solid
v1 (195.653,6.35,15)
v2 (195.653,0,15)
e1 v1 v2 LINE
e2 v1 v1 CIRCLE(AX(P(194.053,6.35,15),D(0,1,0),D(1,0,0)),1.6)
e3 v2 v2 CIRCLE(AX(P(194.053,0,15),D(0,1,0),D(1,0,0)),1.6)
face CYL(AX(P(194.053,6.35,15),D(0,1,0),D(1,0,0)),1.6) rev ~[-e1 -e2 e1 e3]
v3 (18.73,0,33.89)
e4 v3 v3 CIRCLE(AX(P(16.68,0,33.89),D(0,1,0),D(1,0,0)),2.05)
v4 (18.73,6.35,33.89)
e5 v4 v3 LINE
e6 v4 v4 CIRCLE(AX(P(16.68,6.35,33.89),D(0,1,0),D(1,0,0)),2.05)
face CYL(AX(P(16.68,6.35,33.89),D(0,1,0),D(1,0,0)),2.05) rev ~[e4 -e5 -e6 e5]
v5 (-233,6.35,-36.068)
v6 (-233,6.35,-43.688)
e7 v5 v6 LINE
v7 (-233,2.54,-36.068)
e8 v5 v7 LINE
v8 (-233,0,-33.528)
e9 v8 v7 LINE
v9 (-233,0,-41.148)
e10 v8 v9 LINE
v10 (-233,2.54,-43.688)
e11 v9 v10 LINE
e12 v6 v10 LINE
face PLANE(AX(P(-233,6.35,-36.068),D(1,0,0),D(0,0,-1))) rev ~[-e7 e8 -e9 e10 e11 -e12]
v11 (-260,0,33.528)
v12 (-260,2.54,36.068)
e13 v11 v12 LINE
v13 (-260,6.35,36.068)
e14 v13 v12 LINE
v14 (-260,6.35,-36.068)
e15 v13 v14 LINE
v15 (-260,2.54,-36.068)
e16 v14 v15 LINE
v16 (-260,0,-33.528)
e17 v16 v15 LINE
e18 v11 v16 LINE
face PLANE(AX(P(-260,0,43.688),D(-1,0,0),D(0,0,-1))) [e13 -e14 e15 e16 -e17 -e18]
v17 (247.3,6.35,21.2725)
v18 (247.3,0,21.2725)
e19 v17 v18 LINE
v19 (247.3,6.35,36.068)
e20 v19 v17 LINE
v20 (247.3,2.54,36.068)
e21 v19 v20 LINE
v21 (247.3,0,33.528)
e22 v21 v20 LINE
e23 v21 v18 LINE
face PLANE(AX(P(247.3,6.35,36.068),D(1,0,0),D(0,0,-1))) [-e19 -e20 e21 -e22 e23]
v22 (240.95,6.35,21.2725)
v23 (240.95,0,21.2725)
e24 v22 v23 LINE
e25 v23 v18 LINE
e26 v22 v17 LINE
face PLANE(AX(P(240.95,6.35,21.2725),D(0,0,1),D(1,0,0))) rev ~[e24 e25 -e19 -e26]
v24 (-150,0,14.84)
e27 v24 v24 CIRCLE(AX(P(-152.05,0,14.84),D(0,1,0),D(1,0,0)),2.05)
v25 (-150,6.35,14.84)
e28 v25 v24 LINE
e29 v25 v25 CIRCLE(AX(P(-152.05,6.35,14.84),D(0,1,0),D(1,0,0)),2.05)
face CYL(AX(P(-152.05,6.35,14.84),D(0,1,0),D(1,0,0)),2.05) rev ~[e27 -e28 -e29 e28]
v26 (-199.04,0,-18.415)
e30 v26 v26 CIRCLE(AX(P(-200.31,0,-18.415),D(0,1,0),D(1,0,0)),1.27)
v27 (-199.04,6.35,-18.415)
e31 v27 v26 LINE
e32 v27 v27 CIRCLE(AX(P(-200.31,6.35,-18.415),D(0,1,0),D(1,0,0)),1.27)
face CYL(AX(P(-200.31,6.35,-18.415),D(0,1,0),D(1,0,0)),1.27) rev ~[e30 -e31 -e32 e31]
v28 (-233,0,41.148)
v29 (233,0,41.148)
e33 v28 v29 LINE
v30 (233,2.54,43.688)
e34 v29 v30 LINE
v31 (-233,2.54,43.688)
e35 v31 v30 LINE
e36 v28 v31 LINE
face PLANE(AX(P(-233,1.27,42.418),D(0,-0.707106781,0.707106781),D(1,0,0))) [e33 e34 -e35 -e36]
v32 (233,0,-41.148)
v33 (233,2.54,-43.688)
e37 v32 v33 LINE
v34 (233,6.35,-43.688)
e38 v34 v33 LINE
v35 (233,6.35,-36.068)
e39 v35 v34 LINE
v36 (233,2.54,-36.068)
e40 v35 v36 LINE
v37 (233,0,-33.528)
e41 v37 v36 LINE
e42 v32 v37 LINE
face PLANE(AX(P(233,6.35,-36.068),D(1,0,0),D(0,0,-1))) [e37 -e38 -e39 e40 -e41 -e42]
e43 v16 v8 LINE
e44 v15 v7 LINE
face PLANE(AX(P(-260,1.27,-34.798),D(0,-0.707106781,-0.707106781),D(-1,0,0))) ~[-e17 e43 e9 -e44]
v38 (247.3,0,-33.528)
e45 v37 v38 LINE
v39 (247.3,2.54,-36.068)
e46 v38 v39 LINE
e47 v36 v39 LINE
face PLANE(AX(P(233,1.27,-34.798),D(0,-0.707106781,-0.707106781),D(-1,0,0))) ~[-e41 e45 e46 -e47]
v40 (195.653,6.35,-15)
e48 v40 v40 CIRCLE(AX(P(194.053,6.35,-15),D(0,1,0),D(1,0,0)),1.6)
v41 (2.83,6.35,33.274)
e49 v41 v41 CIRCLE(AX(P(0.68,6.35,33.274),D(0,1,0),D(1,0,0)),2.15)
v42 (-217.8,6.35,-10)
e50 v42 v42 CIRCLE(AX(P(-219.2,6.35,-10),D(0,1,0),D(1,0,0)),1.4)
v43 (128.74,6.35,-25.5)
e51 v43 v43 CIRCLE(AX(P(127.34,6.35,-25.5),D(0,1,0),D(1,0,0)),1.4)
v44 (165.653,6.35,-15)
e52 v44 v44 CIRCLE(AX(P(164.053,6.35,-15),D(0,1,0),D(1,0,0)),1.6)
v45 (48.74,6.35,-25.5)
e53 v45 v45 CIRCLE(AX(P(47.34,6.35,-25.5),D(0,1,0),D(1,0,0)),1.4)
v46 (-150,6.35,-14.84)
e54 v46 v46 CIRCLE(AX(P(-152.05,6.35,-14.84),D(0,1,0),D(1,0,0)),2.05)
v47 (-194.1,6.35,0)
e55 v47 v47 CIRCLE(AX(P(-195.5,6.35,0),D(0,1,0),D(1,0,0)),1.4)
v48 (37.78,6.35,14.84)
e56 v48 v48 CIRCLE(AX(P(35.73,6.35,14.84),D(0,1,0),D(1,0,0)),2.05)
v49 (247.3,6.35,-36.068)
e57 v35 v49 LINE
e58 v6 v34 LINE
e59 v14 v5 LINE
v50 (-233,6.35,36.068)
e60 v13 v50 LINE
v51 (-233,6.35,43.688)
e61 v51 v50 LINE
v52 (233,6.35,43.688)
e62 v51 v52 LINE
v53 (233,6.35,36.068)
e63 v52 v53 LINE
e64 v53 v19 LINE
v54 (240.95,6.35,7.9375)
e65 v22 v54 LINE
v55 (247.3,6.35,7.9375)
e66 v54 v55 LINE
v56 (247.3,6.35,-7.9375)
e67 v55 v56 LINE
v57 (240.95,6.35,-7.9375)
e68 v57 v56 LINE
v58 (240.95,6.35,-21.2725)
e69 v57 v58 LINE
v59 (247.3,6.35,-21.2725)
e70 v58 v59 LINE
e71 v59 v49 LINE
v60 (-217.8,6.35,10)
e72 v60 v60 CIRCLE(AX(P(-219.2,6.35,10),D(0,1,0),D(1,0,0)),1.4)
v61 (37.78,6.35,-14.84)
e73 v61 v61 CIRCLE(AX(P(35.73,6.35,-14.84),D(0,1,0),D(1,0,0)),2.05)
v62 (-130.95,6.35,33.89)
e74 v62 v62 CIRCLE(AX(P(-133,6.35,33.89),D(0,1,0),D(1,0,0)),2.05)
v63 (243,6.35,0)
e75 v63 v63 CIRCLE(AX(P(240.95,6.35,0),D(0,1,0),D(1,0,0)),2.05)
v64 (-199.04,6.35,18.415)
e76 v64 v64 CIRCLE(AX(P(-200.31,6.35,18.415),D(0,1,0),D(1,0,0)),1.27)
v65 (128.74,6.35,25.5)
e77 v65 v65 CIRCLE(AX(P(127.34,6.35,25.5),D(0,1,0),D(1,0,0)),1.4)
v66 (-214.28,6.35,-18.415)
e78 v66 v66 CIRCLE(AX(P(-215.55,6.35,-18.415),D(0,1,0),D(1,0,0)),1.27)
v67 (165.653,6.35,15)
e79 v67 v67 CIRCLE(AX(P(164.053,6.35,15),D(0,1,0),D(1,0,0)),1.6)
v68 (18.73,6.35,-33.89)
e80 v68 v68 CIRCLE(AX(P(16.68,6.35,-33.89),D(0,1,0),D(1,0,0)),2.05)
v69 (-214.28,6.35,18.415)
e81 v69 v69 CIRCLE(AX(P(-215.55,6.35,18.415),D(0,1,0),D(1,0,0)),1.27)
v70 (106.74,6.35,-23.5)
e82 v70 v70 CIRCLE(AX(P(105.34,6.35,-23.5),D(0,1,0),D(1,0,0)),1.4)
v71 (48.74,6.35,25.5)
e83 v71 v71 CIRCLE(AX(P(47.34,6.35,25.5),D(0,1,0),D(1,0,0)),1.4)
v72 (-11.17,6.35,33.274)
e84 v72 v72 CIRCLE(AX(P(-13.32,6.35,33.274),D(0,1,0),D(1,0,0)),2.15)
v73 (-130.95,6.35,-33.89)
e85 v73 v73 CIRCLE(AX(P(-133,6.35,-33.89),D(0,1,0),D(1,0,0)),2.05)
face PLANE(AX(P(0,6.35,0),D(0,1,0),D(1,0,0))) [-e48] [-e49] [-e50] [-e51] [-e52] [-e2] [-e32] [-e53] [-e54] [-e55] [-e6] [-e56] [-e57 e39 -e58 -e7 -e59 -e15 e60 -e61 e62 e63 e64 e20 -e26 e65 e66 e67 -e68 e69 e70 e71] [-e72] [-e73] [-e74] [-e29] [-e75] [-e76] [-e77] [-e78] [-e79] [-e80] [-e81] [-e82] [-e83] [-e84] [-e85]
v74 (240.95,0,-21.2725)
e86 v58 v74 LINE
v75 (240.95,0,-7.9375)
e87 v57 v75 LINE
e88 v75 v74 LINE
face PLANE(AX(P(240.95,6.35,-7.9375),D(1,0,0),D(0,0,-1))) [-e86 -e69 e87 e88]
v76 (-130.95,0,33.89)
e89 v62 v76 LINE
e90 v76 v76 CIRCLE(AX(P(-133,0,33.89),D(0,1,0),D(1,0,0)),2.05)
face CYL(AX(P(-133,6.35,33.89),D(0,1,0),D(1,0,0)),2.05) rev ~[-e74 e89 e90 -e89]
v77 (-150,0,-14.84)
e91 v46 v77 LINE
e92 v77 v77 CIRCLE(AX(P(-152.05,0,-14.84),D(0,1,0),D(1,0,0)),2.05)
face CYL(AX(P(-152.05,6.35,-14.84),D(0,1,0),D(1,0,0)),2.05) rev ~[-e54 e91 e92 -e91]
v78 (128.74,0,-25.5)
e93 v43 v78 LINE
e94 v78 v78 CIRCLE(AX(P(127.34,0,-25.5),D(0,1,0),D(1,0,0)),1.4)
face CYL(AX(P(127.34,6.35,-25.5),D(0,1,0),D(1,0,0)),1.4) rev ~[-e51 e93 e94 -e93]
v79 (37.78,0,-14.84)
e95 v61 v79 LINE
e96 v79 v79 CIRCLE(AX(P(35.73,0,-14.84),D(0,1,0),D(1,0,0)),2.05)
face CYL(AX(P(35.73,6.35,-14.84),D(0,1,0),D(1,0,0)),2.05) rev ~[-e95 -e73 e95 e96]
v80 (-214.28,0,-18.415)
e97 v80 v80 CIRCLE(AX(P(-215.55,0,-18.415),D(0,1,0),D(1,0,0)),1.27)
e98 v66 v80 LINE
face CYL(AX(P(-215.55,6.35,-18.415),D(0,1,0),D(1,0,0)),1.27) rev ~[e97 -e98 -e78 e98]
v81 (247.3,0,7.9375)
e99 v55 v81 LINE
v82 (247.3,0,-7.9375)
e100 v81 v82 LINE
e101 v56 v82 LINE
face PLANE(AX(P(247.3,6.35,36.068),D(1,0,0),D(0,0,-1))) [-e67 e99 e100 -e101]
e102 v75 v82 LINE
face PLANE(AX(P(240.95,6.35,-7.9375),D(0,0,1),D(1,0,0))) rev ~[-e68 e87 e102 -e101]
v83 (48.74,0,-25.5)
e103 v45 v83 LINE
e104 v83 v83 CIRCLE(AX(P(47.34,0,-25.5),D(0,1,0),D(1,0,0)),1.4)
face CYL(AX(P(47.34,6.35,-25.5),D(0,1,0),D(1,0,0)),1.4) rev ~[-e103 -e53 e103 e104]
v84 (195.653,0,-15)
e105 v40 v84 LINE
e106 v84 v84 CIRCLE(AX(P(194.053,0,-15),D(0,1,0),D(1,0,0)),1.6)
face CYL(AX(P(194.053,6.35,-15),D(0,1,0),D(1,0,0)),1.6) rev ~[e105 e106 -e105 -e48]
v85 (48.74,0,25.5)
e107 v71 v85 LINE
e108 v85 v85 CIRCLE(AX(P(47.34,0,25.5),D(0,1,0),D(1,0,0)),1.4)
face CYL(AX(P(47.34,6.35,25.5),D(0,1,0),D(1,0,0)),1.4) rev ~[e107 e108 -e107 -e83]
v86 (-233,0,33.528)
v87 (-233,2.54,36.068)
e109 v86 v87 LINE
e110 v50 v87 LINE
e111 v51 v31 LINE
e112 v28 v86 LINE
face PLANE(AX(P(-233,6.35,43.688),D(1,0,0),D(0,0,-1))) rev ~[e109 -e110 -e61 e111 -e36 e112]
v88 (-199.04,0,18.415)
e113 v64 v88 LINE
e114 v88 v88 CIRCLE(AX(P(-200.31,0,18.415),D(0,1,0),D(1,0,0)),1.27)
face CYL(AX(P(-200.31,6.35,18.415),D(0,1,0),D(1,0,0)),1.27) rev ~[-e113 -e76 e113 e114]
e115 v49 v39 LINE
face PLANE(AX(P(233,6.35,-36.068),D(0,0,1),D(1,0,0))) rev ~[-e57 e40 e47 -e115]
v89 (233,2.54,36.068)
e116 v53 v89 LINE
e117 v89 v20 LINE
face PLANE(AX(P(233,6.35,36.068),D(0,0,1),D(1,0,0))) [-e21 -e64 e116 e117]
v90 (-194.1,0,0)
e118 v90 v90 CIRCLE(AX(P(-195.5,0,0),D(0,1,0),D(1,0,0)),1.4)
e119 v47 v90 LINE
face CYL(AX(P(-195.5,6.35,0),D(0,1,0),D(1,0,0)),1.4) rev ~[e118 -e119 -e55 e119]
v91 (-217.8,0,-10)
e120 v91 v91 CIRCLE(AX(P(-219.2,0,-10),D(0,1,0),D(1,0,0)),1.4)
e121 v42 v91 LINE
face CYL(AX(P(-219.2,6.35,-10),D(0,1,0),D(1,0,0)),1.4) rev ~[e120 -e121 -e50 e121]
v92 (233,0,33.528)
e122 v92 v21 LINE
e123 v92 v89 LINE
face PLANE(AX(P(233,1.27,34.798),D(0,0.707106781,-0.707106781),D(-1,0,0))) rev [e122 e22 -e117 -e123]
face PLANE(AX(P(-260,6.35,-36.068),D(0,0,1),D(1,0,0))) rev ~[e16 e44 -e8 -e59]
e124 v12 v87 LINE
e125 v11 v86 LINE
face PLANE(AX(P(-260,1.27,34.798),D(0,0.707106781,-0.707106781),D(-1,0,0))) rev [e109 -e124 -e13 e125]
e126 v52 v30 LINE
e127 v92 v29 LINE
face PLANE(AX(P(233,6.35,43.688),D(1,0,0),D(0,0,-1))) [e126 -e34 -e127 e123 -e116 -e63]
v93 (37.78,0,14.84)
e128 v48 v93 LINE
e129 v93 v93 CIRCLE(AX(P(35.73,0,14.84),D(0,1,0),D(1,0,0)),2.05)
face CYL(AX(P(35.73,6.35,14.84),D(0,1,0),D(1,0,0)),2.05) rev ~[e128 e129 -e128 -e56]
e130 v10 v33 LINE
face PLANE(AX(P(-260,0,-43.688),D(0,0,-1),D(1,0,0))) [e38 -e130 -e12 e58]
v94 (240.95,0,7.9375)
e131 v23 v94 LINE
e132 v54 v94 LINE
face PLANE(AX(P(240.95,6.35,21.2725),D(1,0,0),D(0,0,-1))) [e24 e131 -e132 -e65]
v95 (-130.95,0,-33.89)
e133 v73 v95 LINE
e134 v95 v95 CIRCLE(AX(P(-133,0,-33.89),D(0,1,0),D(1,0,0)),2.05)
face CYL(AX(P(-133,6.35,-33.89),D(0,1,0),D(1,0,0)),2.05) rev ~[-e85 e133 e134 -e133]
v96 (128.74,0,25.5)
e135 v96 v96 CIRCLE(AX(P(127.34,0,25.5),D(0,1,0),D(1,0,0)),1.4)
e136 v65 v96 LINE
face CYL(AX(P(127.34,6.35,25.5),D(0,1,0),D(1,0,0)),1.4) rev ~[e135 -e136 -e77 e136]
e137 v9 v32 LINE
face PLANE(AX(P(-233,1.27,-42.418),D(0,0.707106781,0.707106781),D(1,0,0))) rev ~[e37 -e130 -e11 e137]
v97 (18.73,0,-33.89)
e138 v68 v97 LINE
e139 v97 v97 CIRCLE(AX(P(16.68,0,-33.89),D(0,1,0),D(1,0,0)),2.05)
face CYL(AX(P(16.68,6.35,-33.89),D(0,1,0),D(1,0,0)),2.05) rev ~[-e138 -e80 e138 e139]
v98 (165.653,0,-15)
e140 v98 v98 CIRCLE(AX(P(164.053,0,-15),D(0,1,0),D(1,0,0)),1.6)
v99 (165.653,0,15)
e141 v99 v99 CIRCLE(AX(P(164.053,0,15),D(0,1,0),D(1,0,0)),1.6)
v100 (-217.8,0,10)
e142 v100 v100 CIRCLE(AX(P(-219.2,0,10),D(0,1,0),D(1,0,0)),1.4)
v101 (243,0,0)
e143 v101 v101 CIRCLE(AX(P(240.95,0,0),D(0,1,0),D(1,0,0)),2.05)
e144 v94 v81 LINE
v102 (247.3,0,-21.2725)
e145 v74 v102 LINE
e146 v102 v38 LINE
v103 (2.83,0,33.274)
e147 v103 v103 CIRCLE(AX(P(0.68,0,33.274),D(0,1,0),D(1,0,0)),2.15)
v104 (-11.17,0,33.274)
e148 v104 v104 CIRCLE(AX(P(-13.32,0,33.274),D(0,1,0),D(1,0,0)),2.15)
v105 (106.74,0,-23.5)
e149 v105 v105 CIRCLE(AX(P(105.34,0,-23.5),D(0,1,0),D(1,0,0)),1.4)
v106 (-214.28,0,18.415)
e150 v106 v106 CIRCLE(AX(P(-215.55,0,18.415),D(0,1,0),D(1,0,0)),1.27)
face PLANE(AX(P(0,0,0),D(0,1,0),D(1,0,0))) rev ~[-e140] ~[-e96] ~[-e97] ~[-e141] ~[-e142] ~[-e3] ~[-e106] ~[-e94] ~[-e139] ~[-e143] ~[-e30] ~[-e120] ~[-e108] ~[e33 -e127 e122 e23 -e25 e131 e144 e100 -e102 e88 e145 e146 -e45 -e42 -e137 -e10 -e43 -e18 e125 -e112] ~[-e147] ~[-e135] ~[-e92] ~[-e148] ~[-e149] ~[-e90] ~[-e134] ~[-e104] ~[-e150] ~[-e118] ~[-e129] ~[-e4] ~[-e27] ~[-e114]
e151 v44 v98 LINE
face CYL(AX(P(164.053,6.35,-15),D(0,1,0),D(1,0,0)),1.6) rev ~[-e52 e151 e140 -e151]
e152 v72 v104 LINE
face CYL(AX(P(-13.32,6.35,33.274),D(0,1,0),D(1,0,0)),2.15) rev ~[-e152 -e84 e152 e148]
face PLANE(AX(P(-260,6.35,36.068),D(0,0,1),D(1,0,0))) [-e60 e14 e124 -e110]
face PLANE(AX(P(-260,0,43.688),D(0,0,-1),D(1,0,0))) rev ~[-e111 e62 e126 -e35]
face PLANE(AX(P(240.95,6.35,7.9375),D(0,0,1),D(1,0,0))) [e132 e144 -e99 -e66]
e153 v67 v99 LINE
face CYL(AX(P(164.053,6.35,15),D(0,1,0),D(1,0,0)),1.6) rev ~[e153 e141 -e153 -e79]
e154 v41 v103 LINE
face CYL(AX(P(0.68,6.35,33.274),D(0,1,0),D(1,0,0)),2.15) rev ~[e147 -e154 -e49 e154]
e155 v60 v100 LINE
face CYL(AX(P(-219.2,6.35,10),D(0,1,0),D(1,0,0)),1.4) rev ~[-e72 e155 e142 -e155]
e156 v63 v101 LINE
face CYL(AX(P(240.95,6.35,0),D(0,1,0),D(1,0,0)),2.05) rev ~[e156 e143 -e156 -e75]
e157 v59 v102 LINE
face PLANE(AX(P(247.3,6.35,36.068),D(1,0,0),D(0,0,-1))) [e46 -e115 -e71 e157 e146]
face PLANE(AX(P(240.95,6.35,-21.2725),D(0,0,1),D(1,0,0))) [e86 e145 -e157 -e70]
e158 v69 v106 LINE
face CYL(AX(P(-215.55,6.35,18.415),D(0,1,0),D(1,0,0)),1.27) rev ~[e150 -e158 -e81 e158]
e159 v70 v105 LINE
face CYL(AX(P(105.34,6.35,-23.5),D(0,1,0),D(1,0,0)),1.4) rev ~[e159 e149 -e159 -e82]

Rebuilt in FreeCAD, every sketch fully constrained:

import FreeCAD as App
import Part
import Sketcher
Q = App.Units.Quantity


def edges_at(feature, points):
    """Names of the edges that pass closest to the given points."""
    edges = feature.Shape.Edges
    near = lambda p: min(range(len(edges)), key=lambda i: edges[i].distToShape(Part.Vertex(*p))[0])
    return sorted({f"Edge{near(p) + 1}" for p in points})

doc = App.newDocument("Part")
body = doc.addObject("PartDesign::Body", "Body")

# Sketch on XZ plane
sketch1 = body.newObject("Sketcher::SketchObject", "Sketch")
sketch1.AttachmentSupport = (doc.getObject("XZ_Plane"), [""])
sketch1.MapMode = "FlatFace"
sketch1.addGeometry(Part.LineSegment(App.Vector(-260, -44, 0), App.Vector(-260, 44, 0)), False)
sketch1.addGeometry(Part.LineSegment(App.Vector(-260, 44, 0), App.Vector(260, 44, 0)), False)
sketch1.addGeometry(Part.LineSegment(App.Vector(260, 44, 0), App.Vector(260, -44, 0)), False)
sketch1.addGeometry(Part.LineSegment(App.Vector(260, -44, 0), App.Vector(-260, -44, 0)), False)
sketch1.addConstraint(Sketcher.Constraint("Coincident", 0, 2, 1, 1))
sketch1.addConstraint(Sketcher.Constraint("Coincident", 1, 2, 2, 1))
sketch1.addConstraint(Sketcher.Constraint("Coincident", 2, 2, 3, 1))
sketch1.addConstraint(Sketcher.Constraint("Coincident", 3, 2, 0, 1))
sketch1.addConstraint(Sketcher.Constraint("Vertical", 0))
sketch1.addConstraint(Sketcher.Constraint("Horizontal", 1))
sketch1.addConstraint(Sketcher.Constraint("Vertical", 2))
sketch1.addConstraint(Sketcher.Constraint("Horizontal", 3))
sketch1.addConstraint(Sketcher.Constraint("Symmetric", 0, 2, 2, 2, -1, 1))
sketch1.addConstraint(Sketcher.Constraint("DistanceY", 0, 1, 0, 2, Q("3.44 in")))
sketch1.addConstraint(Sketcher.Constraint("DistanceX", 1, 1, 1, 2, 520.0))
pad1 = body.newObject("PartDesign::Pad", "Pad")
pad1.Profile = sketch1
pad1.Length = Q("0.25 in")
pad1.Reversed = True

# Sketch on XZ plane
sketch2 = body.newObject("Sketcher::SketchObject", "Sketch001")
sketch2.AttachmentSupport = (doc.getObject("XZ_Plane"), [""])
sketch2.MapMode = "FlatFace"
sketch2.AttachmentOffset = App.Placement(App.Vector(0, 0, -0.25 * 25.4), App.Rotation())
sketch2.addGeometry(Part.LineSegment(App.Vector(-260, -44, 0), App.Vector(-260, -36, 0)), False)
sketch2.addGeometry(Part.LineSegment(App.Vector(-260, -36, 0), App.Vector(-233, -36, 0)), False)
sketch2.addGeometry(Part.LineSegment(App.Vector(-233, -36, 0), App.Vector(-233, -44, 0)), False)
sketch2.addGeometry(Part.LineSegment(App.Vector(-233, -44, 0), App.Vector(-260, -44, 0)), False)
sketch2.addGeometry(Part.LineSegment(App.Vector(-260, 36, 0), App.Vector(-260, 44, 0)), False)
sketch2.addGeometry(Part.LineSegment(App.Vector(-260, 44, 0), App.Vector(-233, 44, 0)), False)
sketch2.addGeometry(Part.LineSegment(App.Vector(-233, 44, 0), App.Vector(-233, 36, 0)), False)
sketch2.addGeometry(Part.LineSegment(App.Vector(-233, 36, 0), App.Vector(-260, 36, 0)), False)
sketch2.addGeometry(Part.LineSegment(App.Vector(233, 36, 0), App.Vector(233, 44, 0)), False)
sketch2.addGeometry(Part.LineSegment(App.Vector(233, 44, 0), App.Vector(260, 44, 0)), False)
sketch2.addGeometry(Part.LineSegment(App.Vector(260, 44, 0), App.Vector(260, 36, 0)), False)
sketch2.addGeometry(Part.LineSegment(App.Vector(260, 36, 0), App.Vector(233, 36, 0)), False)
sketch2.addGeometry(Part.LineSegment(App.Vector(233, -44, 0), App.Vector(233, -36, 0)), False)
sketch2.addGeometry(Part.LineSegment(App.Vector(233, -36, 0), App.Vector(260, -36, 0)), False)
sketch2.addGeometry(Part.LineSegment(App.Vector(260, -36, 0), App.Vector(260, -44, 0)), False)
sketch2.addGeometry(Part.LineSegment(App.Vector(260, -44, 0), App.Vector(233, -44, 0)), False)
sketch2.addConstraint(Sketcher.Constraint("Coincident", 0, 2, 1, 1))
sketch2.addConstraint(Sketcher.Constraint("Coincident", 1, 2, 2, 1))
sketch2.addConstraint(Sketcher.Constraint("Coincident", 2, 2, 3, 1))
sketch2.addConstraint(Sketcher.Constraint("Coincident", 3, 2, 0, 1))
sketch2.addConstraint(Sketcher.Constraint("Coincident", 4, 2, 5, 1))
sketch2.addConstraint(Sketcher.Constraint("Coincident", 5, 2, 6, 1))
sketch2.addConstraint(Sketcher.Constraint("Coincident", 6, 2, 7, 1))
sketch2.addConstraint(Sketcher.Constraint("Coincident", 7, 2, 4, 1))
sketch2.addConstraint(Sketcher.Constraint("Coincident", 8, 2, 9, 1))
sketch2.addConstraint(Sketcher.Constraint("Coincident", 9, 2, 10, 1))
sketch2.addConstraint(Sketcher.Constraint("Coincident", 10, 2, 11, 1))
sketch2.addConstraint(Sketcher.Constraint("Coincident", 11, 2, 8, 1))
sketch2.addConstraint(Sketcher.Constraint("Coincident", 12, 2, 13, 1))
sketch2.addConstraint(Sketcher.Constraint("Coincident", 13, 2, 14, 1))
sketch2.addConstraint(Sketcher.Constraint("Coincident", 14, 2, 15, 1))
sketch2.addConstraint(Sketcher.Constraint("Coincident", 15, 2, 12, 1))
sketch2.addConstraint(Sketcher.Constraint("Vertical", 0))
sketch2.addConstraint(Sketcher.Constraint("Horizontal", 1))
sketch2.addConstraint(Sketcher.Constraint("Vertical", 2))
sketch2.addConstraint(Sketcher.Constraint("Horizontal", 3))
sketch2.addConstraint(Sketcher.Constraint("Vertical", 4))
sketch2.addConstraint(Sketcher.Constraint("Horizontal", 5))
sketch2.addConstraint(Sketcher.Constraint("Vertical", 6))
sketch2.addConstraint(Sketcher.Constraint("Horizontal", 7))
sketch2.addConstraint(Sketcher.Constraint("Vertical", 8))
sketch2.addConstraint(Sketcher.Constraint("Horizontal", 9))
sketch2.addConstraint(Sketcher.Constraint("Vertical", 10))
sketch2.addConstraint(Sketcher.Constraint("Horizontal", 11))
sketch2.addConstraint(Sketcher.Constraint("Vertical", 12))
sketch2.addConstraint(Sketcher.Constraint("Horizontal", 13))
sketch2.addConstraint(Sketcher.Constraint("Vertical", 14))
sketch2.addConstraint(Sketcher.Constraint("Horizontal", 15))
sketch2.addConstraint(Sketcher.Constraint("Symmetric", 2, 2, 8, 2, -1, 1))
sketch2.addConstraint(Sketcher.Constraint("Symmetric", 0, 2, 10, 2, -1, 1))
sketch2.addConstraint(Sketcher.Constraint("Symmetric", 6, 2, 12, 2, -1, 1))
sketch2.addConstraint(Sketcher.Constraint("Symmetric", 4, 2, 14, 2, -1, 1))
sketch2.addConstraint(Sketcher.Constraint("Symmetric", 5, 2, 8, 2, -2))
sketch2.addConstraint(Sketcher.Constraint("Symmetric", 7, 2, 10, 2, -2))
sketch2.addConstraint(Sketcher.Constraint("DistanceY", 0, 1, 0, 2, Q("0.3 in")))
sketch2.addConstraint(Sketcher.Constraint("DistanceY", 0, 2, -1, 1, Q("1.42 in")))
sketch2.addConstraint(Sketcher.Constraint("DistanceX", 1, 1, 1, 2, 27.0))
sketch2.addConstraint(Sketcher.Constraint("DistanceX", 0, 2, -1, 1, 260.0))
pocket1 = body.newObject("PartDesign::Pocket", "Pocket")
pocket1.Profile = sketch2
pocket1.Type = "ThroughAll"
pocket1.Reversed = True

# Sketch on XZ plane
sketch3 = body.newObject("Sketcher::SketchObject", "Sketch002")
sketch3.AttachmentSupport = (doc.getObject("XZ_Plane"), [""])
sketch3.MapMode = "FlatFace"
sketch3.AttachmentOffset = App.Placement(App.Vector(0, 0, -0.25 * 25.4), App.Rotation())
sketch3.addGeometry(Part.LineSegment(App.Vector(247, -36, 0), App.Vector(247, 36, 0)), False)
sketch3.addGeometry(Part.LineSegment(App.Vector(247, 36, 0), App.Vector(260, 36, 0)), False)
sketch3.addGeometry(Part.LineSegment(App.Vector(260, 36, 0), App.Vector(260, -36, 0)), False)
sketch3.addGeometry(Part.LineSegment(App.Vector(260, -36, 0), App.Vector(247, -36, 0)), False)
sketch3.addConstraint(Sketcher.Constraint("Coincident", 0, 2, 1, 1))
sketch3.addConstraint(Sketcher.Constraint("Coincident", 1, 2, 2, 1))
sketch3.addConstraint(Sketcher.Constraint("Coincident", 2, 2, 3, 1))
sketch3.addConstraint(Sketcher.Constraint("Coincident", 3, 2, 0, 1))
sketch3.addConstraint(Sketcher.Constraint("Vertical", 0))
sketch3.addConstraint(Sketcher.Constraint("Horizontal", 1))
sketch3.addConstraint(Sketcher.Constraint("Vertical", 2))
sketch3.addConstraint(Sketcher.Constraint("Horizontal", 3))
sketch3.addConstraint(Sketcher.Constraint("DistanceX", 1, 1, 1, 2, Q("0.5 in")))
sketch3.addConstraint(Sketcher.Constraint("DistanceY", 0, 1, 0, 2, Q("2.84 in")))
sketch3.addConstraint(Sketcher.Constraint("DistanceY", -1, 1, 0, 2, Q("1.42 in")))
sketch3.addConstraint(Sketcher.Constraint("DistanceX", -1, 1, 0, 2, 247.3))
pocket2 = body.newObject("PartDesign::Pocket", "Pocket001")
pocket2.Profile = sketch3
pocket2.Type = "ThroughAll"
pocket2.Reversed = True

# Sketch on XZ plane
sketch4 = body.newObject("Sketcher::SketchObject", "Sketch003")
sketch4.AttachmentSupport = (doc.getObject("XZ_Plane"), [""])
sketch4.MapMode = "FlatFace"
sketch4.AttachmentOffset = App.Placement(App.Vector(0, 0, -0.25 * 25.4), App.Rotation())
sketch4.addGeometry(Part.Circle(App.Vector(-219.2, -10, 0), App.Vector(0, 0, 1), 1.4), False)
sketch4.addGeometry(Part.Circle(App.Vector(-219.2, 10, 0), App.Vector(0, 0, 1), 1.4), False)
sketch4.addGeometry(Part.Circle(App.Vector(-195.5, 0, 0), App.Vector(0, 0, 1), 1.4), False)
sketch4.addConstraint(Sketcher.Constraint("Equal", 0, 1))
sketch4.addConstraint(Sketcher.Constraint("Equal", 1, 2))
sketch4.addConstraint(Sketcher.Constraint("Symmetric", 0, 3, 1, 3, -1))
sketch4.addConstraint(Sketcher.Constraint("PointOnObject", 2, 3, -1))
sketch4.addConstraint(Sketcher.Constraint("Diameter", 0, 2.8))
sketch4.addConstraint(Sketcher.Constraint("DistanceX", 0, 3, -1, 1, 219.2))
sketch4.addConstraint(Sketcher.Constraint("DistanceY", 0, 3, -1, 1, 10.0))
sketch4.addConstraint(Sketcher.Constraint("DistanceX", 2, 3, -1, 1, 195.5))
pocket3 = body.newObject("PartDesign::Pocket", "Pocket002")
pocket3.Profile = sketch4
pocket3.Type = "ThroughAll"
pocket3.Reversed = True

# Sketch on XZ plane
sketch5 = body.newObject("Sketcher::SketchObject", "Sketch004")
sketch5.AttachmentSupport = (doc.getObject("XZ_Plane"), [""])
sketch5.MapMode = "FlatFace"
sketch5.AttachmentOffset = App.Placement(App.Vector(0, 0, -0.25 * 25.4), App.Rotation())
sketch5.addGeometry(Part.Circle(App.Vector(-133, -33.9, 0), App.Vector(0, 0, 1), 2), False)
sketch5.addGeometry(Part.Circle(App.Vector(-152.1, -14.8, 0), App.Vector(0, 0, 1), 2), False)
sketch5.addGeometry(Part.Circle(App.Vector(-152.1, 14.8, 0), App.Vector(0, 0, 1), 2), False)
sketch5.addGeometry(Part.Circle(App.Vector(-133, 33.9, 0), App.Vector(0, 0, 1), 2), False)
sketch5.addGeometry(Part.Circle(App.Vector(16.7, -33.9, 0), App.Vector(0, 0, 1), 2), False)
sketch5.addGeometry(Part.Circle(App.Vector(35.7, -14.8, 0), App.Vector(0, 0, 1), 2), False)
sketch5.addGeometry(Part.Circle(App.Vector(35.7, 14.8, 0), App.Vector(0, 0, 1), 2), False)
sketch5.addGeometry(Part.Circle(App.Vector(16.7, 33.9, 0), App.Vector(0, 0, 1), 2), False)
sketch5.addConstraint(Sketcher.Constraint("Equal", 0, 1))
sketch5.addConstraint(Sketcher.Constraint("Equal", 1, 2))
sketch5.addConstraint(Sketcher.Constraint("Equal", 2, 3))
sketch5.addConstraint(Sketcher.Constraint("Equal", 3, 4))
sketch5.addConstraint(Sketcher.Constraint("Equal", 4, 5))
sketch5.addConstraint(Sketcher.Constraint("Equal", 5, 6))
sketch5.addConstraint(Sketcher.Constraint("Equal", 6, 7))
sketch5.addConstraint(Sketcher.Constraint("Symmetric", 1, 3, 2, 3, -1))
sketch5.addConstraint(Sketcher.Constraint("Symmetric", 0, 3, 3, 3, -1))
sketch5.addConstraint(Sketcher.Constraint("Symmetric", 5, 3, 6, 3, -1))
sketch5.addConstraint(Sketcher.Constraint("Symmetric", 4, 3, 7, 3, -1))
sketch5.addConstraint(Sketcher.Constraint("Horizontal", 0, 3, 4, 3))
sketch5.addConstraint(Sketcher.Constraint("Horizontal", 1, 3, 5, 3))
sketch5.addConstraint(Sketcher.Constraint("Diameter", 0, 4.1))
sketch5.addConstraint(Sketcher.Constraint("DistanceX", 1, 3, 0, 3, Q("0.75 in")))
sketch5.addConstraint(Sketcher.Constraint("DistanceY", 0, 3, 1, 3, Q("0.75 in")))
sketch5.addConstraint(Sketcher.Constraint("DistanceX", 4, 3, 5, 3, Q("0.75 in")))
sketch5.addConstraint(Sketcher.Constraint("DistanceX", 0, 3, -1, 1, 133.0))
sketch5.addConstraint(Sketcher.Constraint("DistanceY", 0, 3, -1, 1, 33.89))
sketch5.addConstraint(Sketcher.Constraint("DistanceX", -1, 1, 4, 3, 16.68))
pocket4 = body.newObject("PartDesign::Pocket", "Pocket003")
pocket4.Profile = sketch5
pocket4.Type = "ThroughAll"
pocket4.Reversed = True
doc.recompute()

chamfer = body.newObject("PartDesign::Chamfer", "Chamfer")
chamfer.Base = (pocket4, edges_at(pocket4, [
    (0, 0, -43.688),
    (0, 0, 43.688),
    (240.15, 0, -36.068),
    (-246.5, 0, 36.068),
    (-246.5, 0, -36.068),
    (240.15, 0, 36.068),
]))
chamfer.Size = Q("0.1 in")

# Sketch on XZ plane
sketch6 = body.newObject("Sketcher::SketchObject", "Sketch005")
sketch6.AttachmentSupport = (doc.getObject("XZ_Plane"), [""])
sketch6.MapMode = "FlatFace"
sketch6.AttachmentOffset = App.Placement(App.Vector(0, 0, -0.25 * 25.4), App.Rotation())
sketch6.addGeometry(Part.Circle(App.Vector(47.3, -25.5, 0), App.Vector(0, 0, 1), 1.4), False)
sketch6.addGeometry(Part.Circle(App.Vector(127.3, -25.5, 0), App.Vector(0, 0, 1), 1.4), False)
sketch6.addGeometry(Part.Circle(App.Vector(47.3, 25.5, 0), App.Vector(0, 0, 1), 1.4), False)
sketch6.addGeometry(Part.Circle(App.Vector(127.3, 25.5, 0), App.Vector(0, 0, 1), 1.4), False)
sketch6.addGeometry(Part.Circle(App.Vector(105.3, -23.5, 0), App.Vector(0, 0, 1), 1.4), False)
sketch6.addConstraint(Sketcher.Constraint("Equal", 0, 1))
sketch6.addConstraint(Sketcher.Constraint("Equal", 1, 2))
sketch6.addConstraint(Sketcher.Constraint("Equal", 2, 3))
sketch6.addConstraint(Sketcher.Constraint("Equal", 3, 4))
sketch6.addConstraint(Sketcher.Constraint("Symmetric", 0, 3, 2, 3, -1))
sketch6.addConstraint(Sketcher.Constraint("Symmetric", 1, 3, 3, 3, -1))
sketch6.addConstraint(Sketcher.Constraint("Horizontal", 0, 3, 1, 3))
sketch6.addConstraint(Sketcher.Constraint("Diameter", 0, 2.8))
sketch6.addConstraint(Sketcher.Constraint("DistanceX", -1, 1, 0, 3, 47.34))
sketch6.addConstraint(Sketcher.Constraint("DistanceY", 0, 3, -1, 1, 25.5))
sketch6.addConstraint(Sketcher.Constraint("DistanceX", -1, 1, 1, 3, 127.34))
sketch6.addConstraint(Sketcher.Constraint("DistanceX", -1, 1, 4, 3, 105.34))
sketch6.addConstraint(Sketcher.Constraint("DistanceY", 4, 3, -1, 1, 23.5))
pocket5 = body.newObject("PartDesign::Pocket", "Pocket004")
pocket5.Profile = sketch6
pocket5.Type = "ThroughAll"
pocket5.Reversed = True

# Sketch on XZ plane
sketch7 = body.newObject("Sketcher::SketchObject", "Sketch006")
sketch7.AttachmentSupport = (doc.getObject("XZ_Plane"), [""])
sketch7.MapMode = "FlatFace"
sketch7.AttachmentOffset = App.Placement(App.Vector(0, 0, -0.25 * 25.4), App.Rotation())
sketch7.addGeometry(Part.Circle(App.Vector(240.9, 0, 0), App.Vector(0, 0, 1), 2), False)
sketch7.addConstraint(Sketcher.Constraint("PointOnObject", 0, 3, -1))
sketch7.addConstraint(Sketcher.Constraint("Diameter", 0, 4.1))
sketch7.addConstraint(Sketcher.Constraint("DistanceX", -1, 1, 0, 3, 240.95))
pocket6 = body.newObject("PartDesign::Pocket", "Pocket005")
pocket6.Profile = sketch7
pocket6.Type = "ThroughAll"
pocket6.Reversed = True

# Sketch on XZ plane
sketch8 = body.newObject("Sketcher::SketchObject", "Sketch007")
sketch8.AttachmentSupport = (doc.getObject("XZ_Plane"), [""])
sketch8.MapMode = "FlatFace"
sketch8.AttachmentOffset = App.Placement(App.Vector(0, 0, -0.25 * 25.4), App.Rotation())
sketch8.addGeometry(Part.Circle(App.Vector(-215.6, 18.4, 0), App.Vector(0, 0, 1), 1.3), False)
sketch8.addGeometry(Part.Circle(App.Vector(-215.6, -18.4, 0), App.Vector(0, 0, 1), 1.3), False)
sketch8.addGeometry(Part.Circle(App.Vector(-200.3, -18.4, 0), App.Vector(0, 0, 1), 1.3), False)
sketch8.addGeometry(Part.Circle(App.Vector(-200.3, 18.4, 0), App.Vector(0, 0, 1), 1.3), False)
sketch8.addConstraint(Sketcher.Constraint("Equal", 0, 1))
sketch8.addConstraint(Sketcher.Constraint("Equal", 1, 2))
sketch8.addConstraint(Sketcher.Constraint("Equal", 2, 3))
sketch8.addConstraint(Sketcher.Constraint("Symmetric", 0, 3, 1, 3, -1))
sketch8.addConstraint(Sketcher.Constraint("Symmetric", 2, 3, 3, 3, -1))
sketch8.addConstraint(Sketcher.Constraint("Horizontal", 1, 3, 2, 3))
sketch8.addConstraint(Sketcher.Constraint("Diameter", 0, Q("0.1 in")))
sketch8.addConstraint(Sketcher.Constraint("DistanceX", 1, 3, 2, 3, Q("0.6 in")))
sketch8.addConstraint(Sketcher.Constraint("DistanceY", 1, 3, 0, 3, Q("1.45 in")))
sketch8.addConstraint(Sketcher.Constraint("DistanceX", 0, 3, -1, 1, 215.55))
pocket7 = body.newObject("PartDesign::Pocket", "Pocket006")
pocket7.Profile = sketch8
pocket7.Type = "ThroughAll"
pocket7.Reversed = True

# Sketch on XZ plane
sketch9 = body.newObject("Sketcher::SketchObject", "Sketch008")
sketch9.AttachmentSupport = (doc.getObject("XZ_Plane"), [""])
sketch9.MapMode = "FlatFace"
sketch9.AttachmentOffset = App.Placement(App.Vector(0, 0, -0.25 * 25.4), App.Rotation())
sketch9.addGeometry(Part.LineSegment(App.Vector(241, 8, 0), App.Vector(241, 21, 0)), False)
sketch9.addGeometry(Part.LineSegment(App.Vector(241, 21, 0), App.Vector(247, 21, 0)), False)
sketch9.addGeometry(Part.LineSegment(App.Vector(247, 21, 0), App.Vector(247, 8, 0)), False)
sketch9.addGeometry(Part.LineSegment(App.Vector(247, 8, 0), App.Vector(241, 8, 0)), False)
sketch9.addGeometry(Part.LineSegment(App.Vector(241, -21, 0), App.Vector(241, -8, 0)), False)
sketch9.addGeometry(Part.LineSegment(App.Vector(241, -8, 0), App.Vector(247, -8, 0)), False)
sketch9.addGeometry(Part.LineSegment(App.Vector(247, -8, 0), App.Vector(247, -21, 0)), False)
sketch9.addGeometry(Part.LineSegment(App.Vector(247, -21, 0), App.Vector(241, -21, 0)), False)
sketch9.addConstraint(Sketcher.Constraint("Coincident", 0, 2, 1, 1))
sketch9.addConstraint(Sketcher.Constraint("Coincident", 1, 2, 2, 1))
sketch9.addConstraint(Sketcher.Constraint("Coincident", 2, 2, 3, 1))
sketch9.addConstraint(Sketcher.Constraint("Coincident", 3, 2, 0, 1))
sketch9.addConstraint(Sketcher.Constraint("Coincident", 4, 2, 5, 1))
sketch9.addConstraint(Sketcher.Constraint("Coincident", 5, 2, 6, 1))
sketch9.addConstraint(Sketcher.Constraint("Coincident", 6, 2, 7, 1))
sketch9.addConstraint(Sketcher.Constraint("Coincident", 7, 2, 4, 1))
sketch9.addConstraint(Sketcher.Constraint("Vertical", 0))
sketch9.addConstraint(Sketcher.Constraint("Horizontal", 1))
sketch9.addConstraint(Sketcher.Constraint("Vertical", 2))
sketch9.addConstraint(Sketcher.Constraint("Horizontal", 3))
sketch9.addConstraint(Sketcher.Constraint("Vertical", 4))
sketch9.addConstraint(Sketcher.Constraint("Horizontal", 5))
sketch9.addConstraint(Sketcher.Constraint("Vertical", 6))
sketch9.addConstraint(Sketcher.Constraint("Horizontal", 7))
sketch9.addConstraint(Sketcher.Constraint("Symmetric", 3, 2, 4, 2, -1))
sketch9.addConstraint(Sketcher.Constraint("Symmetric", 1, 2, 6, 2, -1))
sketch9.addConstraint(Sketcher.Constraint("DistanceX", 1, 1, 1, 2, Q("0.25 in")))
sketch9.addConstraint(Sketcher.Constraint("DistanceY", 0, 1, 0, 2, Q("0.525 in")))
sketch9.addConstraint(Sketcher.Constraint("DistanceY", 4, 2, 0, 2, Q("1.15 in")))
sketch9.addConstraint(Sketcher.Constraint("DistanceX", -1, 1, 0, 2, 240.95))
pocket8 = body.newObject("PartDesign::Pocket", "Pocket007")
pocket8.Profile = sketch9
pocket8.Type = "ThroughAll"
pocket8.Reversed = True

# Sketch on XZ plane
sketch10 = body.newObject("Sketcher::SketchObject", "Sketch009")
sketch10.AttachmentSupport = (doc.getObject("XZ_Plane"), [""])
sketch10.MapMode = "FlatFace"
sketch10.AttachmentOffset = App.Placement(App.Vector(0, 0, -0.25 * 25.4), App.Rotation())
sketch10.addGeometry(Part.Circle(App.Vector(164.1, 15, 0), App.Vector(0, 0, 1), 1.6), False)
sketch10.addGeometry(Part.Circle(App.Vector(194.1, 15, 0), App.Vector(0, 0, 1), 1.6), False)
sketch10.addGeometry(Part.Circle(App.Vector(164.1, -15, 0), App.Vector(0, 0, 1), 1.6), False)
sketch10.addGeometry(Part.Circle(App.Vector(194.1, -15, 0), App.Vector(0, 0, 1), 1.6), False)
sketch10.addConstraint(Sketcher.Constraint("Equal", 0, 1))
sketch10.addConstraint(Sketcher.Constraint("Equal", 1, 2))
sketch10.addConstraint(Sketcher.Constraint("Equal", 2, 3))
sketch10.addConstraint(Sketcher.Constraint("Symmetric", 0, 3, 2, 3, -1))
sketch10.addConstraint(Sketcher.Constraint("Symmetric", 1, 3, 3, 3, -1))
sketch10.addConstraint(Sketcher.Constraint("Horizontal", 0, 3, 1, 3))
sketch10.addConstraint(Sketcher.Constraint("Diameter", 0, 3.2))
sketch10.addConstraint(Sketcher.Constraint("DistanceX", -1, 1, 0, 3, 164.053))
sketch10.addConstraint(Sketcher.Constraint("DistanceY", -1, 1, 0, 3, 15.0))
sketch10.addConstraint(Sketcher.Constraint("DistanceX", -1, 1, 1, 3, 194.053))
pocket9 = body.newObject("PartDesign::Pocket", "Pocket008")
pocket9.Profile = sketch10
pocket9.Type = "ThroughAll"
pocket9.Reversed = True

# Sketch on XZ plane
sketch11 = body.newObject("Sketcher::SketchObject", "Sketch010")
sketch11.AttachmentSupport = (doc.getObject("XZ_Plane"), [""])
sketch11.MapMode = "FlatFace"
sketch11.AttachmentOffset = App.Placement(App.Vector(0, 0, -0.25 * 25.4), App.Rotation())
sketch11.addGeometry(Part.Circle(App.Vector(0.7, 33.3, 0), App.Vector(0, 0, 1), 2.1), False)
sketch11.addGeometry(Part.Circle(App.Vector(-13.3, 33.3, 0), App.Vector(0, 0, 1), 2.1), False)
sketch11.addConstraint(Sketcher.Constraint("Equal", 0, 1))
sketch11.addConstraint(Sketcher.Constraint("Horizontal", 0, 3, 1, 3))
sketch11.addConstraint(Sketcher.Constraint("Diameter", 0, 4.3))
sketch11.addConstraint(Sketcher.Constraint("DistanceY", -1, 1, 0, 3, Q("1.31 in")))
sketch11.addConstraint(Sketcher.Constraint("DistanceX", -1, 1, 0, 3, 0.68))
sketch11.addConstraint(Sketcher.Constraint("DistanceX", 1, 3, -1, 1, 13.32))
pocket10 = body.newObject("PartDesign::Pocket", "Pocket009")
pocket10.Profile = sketch11
pocket10.Type = "ThroughAll"
pocket10.Reversed = True

doc.recompute()
